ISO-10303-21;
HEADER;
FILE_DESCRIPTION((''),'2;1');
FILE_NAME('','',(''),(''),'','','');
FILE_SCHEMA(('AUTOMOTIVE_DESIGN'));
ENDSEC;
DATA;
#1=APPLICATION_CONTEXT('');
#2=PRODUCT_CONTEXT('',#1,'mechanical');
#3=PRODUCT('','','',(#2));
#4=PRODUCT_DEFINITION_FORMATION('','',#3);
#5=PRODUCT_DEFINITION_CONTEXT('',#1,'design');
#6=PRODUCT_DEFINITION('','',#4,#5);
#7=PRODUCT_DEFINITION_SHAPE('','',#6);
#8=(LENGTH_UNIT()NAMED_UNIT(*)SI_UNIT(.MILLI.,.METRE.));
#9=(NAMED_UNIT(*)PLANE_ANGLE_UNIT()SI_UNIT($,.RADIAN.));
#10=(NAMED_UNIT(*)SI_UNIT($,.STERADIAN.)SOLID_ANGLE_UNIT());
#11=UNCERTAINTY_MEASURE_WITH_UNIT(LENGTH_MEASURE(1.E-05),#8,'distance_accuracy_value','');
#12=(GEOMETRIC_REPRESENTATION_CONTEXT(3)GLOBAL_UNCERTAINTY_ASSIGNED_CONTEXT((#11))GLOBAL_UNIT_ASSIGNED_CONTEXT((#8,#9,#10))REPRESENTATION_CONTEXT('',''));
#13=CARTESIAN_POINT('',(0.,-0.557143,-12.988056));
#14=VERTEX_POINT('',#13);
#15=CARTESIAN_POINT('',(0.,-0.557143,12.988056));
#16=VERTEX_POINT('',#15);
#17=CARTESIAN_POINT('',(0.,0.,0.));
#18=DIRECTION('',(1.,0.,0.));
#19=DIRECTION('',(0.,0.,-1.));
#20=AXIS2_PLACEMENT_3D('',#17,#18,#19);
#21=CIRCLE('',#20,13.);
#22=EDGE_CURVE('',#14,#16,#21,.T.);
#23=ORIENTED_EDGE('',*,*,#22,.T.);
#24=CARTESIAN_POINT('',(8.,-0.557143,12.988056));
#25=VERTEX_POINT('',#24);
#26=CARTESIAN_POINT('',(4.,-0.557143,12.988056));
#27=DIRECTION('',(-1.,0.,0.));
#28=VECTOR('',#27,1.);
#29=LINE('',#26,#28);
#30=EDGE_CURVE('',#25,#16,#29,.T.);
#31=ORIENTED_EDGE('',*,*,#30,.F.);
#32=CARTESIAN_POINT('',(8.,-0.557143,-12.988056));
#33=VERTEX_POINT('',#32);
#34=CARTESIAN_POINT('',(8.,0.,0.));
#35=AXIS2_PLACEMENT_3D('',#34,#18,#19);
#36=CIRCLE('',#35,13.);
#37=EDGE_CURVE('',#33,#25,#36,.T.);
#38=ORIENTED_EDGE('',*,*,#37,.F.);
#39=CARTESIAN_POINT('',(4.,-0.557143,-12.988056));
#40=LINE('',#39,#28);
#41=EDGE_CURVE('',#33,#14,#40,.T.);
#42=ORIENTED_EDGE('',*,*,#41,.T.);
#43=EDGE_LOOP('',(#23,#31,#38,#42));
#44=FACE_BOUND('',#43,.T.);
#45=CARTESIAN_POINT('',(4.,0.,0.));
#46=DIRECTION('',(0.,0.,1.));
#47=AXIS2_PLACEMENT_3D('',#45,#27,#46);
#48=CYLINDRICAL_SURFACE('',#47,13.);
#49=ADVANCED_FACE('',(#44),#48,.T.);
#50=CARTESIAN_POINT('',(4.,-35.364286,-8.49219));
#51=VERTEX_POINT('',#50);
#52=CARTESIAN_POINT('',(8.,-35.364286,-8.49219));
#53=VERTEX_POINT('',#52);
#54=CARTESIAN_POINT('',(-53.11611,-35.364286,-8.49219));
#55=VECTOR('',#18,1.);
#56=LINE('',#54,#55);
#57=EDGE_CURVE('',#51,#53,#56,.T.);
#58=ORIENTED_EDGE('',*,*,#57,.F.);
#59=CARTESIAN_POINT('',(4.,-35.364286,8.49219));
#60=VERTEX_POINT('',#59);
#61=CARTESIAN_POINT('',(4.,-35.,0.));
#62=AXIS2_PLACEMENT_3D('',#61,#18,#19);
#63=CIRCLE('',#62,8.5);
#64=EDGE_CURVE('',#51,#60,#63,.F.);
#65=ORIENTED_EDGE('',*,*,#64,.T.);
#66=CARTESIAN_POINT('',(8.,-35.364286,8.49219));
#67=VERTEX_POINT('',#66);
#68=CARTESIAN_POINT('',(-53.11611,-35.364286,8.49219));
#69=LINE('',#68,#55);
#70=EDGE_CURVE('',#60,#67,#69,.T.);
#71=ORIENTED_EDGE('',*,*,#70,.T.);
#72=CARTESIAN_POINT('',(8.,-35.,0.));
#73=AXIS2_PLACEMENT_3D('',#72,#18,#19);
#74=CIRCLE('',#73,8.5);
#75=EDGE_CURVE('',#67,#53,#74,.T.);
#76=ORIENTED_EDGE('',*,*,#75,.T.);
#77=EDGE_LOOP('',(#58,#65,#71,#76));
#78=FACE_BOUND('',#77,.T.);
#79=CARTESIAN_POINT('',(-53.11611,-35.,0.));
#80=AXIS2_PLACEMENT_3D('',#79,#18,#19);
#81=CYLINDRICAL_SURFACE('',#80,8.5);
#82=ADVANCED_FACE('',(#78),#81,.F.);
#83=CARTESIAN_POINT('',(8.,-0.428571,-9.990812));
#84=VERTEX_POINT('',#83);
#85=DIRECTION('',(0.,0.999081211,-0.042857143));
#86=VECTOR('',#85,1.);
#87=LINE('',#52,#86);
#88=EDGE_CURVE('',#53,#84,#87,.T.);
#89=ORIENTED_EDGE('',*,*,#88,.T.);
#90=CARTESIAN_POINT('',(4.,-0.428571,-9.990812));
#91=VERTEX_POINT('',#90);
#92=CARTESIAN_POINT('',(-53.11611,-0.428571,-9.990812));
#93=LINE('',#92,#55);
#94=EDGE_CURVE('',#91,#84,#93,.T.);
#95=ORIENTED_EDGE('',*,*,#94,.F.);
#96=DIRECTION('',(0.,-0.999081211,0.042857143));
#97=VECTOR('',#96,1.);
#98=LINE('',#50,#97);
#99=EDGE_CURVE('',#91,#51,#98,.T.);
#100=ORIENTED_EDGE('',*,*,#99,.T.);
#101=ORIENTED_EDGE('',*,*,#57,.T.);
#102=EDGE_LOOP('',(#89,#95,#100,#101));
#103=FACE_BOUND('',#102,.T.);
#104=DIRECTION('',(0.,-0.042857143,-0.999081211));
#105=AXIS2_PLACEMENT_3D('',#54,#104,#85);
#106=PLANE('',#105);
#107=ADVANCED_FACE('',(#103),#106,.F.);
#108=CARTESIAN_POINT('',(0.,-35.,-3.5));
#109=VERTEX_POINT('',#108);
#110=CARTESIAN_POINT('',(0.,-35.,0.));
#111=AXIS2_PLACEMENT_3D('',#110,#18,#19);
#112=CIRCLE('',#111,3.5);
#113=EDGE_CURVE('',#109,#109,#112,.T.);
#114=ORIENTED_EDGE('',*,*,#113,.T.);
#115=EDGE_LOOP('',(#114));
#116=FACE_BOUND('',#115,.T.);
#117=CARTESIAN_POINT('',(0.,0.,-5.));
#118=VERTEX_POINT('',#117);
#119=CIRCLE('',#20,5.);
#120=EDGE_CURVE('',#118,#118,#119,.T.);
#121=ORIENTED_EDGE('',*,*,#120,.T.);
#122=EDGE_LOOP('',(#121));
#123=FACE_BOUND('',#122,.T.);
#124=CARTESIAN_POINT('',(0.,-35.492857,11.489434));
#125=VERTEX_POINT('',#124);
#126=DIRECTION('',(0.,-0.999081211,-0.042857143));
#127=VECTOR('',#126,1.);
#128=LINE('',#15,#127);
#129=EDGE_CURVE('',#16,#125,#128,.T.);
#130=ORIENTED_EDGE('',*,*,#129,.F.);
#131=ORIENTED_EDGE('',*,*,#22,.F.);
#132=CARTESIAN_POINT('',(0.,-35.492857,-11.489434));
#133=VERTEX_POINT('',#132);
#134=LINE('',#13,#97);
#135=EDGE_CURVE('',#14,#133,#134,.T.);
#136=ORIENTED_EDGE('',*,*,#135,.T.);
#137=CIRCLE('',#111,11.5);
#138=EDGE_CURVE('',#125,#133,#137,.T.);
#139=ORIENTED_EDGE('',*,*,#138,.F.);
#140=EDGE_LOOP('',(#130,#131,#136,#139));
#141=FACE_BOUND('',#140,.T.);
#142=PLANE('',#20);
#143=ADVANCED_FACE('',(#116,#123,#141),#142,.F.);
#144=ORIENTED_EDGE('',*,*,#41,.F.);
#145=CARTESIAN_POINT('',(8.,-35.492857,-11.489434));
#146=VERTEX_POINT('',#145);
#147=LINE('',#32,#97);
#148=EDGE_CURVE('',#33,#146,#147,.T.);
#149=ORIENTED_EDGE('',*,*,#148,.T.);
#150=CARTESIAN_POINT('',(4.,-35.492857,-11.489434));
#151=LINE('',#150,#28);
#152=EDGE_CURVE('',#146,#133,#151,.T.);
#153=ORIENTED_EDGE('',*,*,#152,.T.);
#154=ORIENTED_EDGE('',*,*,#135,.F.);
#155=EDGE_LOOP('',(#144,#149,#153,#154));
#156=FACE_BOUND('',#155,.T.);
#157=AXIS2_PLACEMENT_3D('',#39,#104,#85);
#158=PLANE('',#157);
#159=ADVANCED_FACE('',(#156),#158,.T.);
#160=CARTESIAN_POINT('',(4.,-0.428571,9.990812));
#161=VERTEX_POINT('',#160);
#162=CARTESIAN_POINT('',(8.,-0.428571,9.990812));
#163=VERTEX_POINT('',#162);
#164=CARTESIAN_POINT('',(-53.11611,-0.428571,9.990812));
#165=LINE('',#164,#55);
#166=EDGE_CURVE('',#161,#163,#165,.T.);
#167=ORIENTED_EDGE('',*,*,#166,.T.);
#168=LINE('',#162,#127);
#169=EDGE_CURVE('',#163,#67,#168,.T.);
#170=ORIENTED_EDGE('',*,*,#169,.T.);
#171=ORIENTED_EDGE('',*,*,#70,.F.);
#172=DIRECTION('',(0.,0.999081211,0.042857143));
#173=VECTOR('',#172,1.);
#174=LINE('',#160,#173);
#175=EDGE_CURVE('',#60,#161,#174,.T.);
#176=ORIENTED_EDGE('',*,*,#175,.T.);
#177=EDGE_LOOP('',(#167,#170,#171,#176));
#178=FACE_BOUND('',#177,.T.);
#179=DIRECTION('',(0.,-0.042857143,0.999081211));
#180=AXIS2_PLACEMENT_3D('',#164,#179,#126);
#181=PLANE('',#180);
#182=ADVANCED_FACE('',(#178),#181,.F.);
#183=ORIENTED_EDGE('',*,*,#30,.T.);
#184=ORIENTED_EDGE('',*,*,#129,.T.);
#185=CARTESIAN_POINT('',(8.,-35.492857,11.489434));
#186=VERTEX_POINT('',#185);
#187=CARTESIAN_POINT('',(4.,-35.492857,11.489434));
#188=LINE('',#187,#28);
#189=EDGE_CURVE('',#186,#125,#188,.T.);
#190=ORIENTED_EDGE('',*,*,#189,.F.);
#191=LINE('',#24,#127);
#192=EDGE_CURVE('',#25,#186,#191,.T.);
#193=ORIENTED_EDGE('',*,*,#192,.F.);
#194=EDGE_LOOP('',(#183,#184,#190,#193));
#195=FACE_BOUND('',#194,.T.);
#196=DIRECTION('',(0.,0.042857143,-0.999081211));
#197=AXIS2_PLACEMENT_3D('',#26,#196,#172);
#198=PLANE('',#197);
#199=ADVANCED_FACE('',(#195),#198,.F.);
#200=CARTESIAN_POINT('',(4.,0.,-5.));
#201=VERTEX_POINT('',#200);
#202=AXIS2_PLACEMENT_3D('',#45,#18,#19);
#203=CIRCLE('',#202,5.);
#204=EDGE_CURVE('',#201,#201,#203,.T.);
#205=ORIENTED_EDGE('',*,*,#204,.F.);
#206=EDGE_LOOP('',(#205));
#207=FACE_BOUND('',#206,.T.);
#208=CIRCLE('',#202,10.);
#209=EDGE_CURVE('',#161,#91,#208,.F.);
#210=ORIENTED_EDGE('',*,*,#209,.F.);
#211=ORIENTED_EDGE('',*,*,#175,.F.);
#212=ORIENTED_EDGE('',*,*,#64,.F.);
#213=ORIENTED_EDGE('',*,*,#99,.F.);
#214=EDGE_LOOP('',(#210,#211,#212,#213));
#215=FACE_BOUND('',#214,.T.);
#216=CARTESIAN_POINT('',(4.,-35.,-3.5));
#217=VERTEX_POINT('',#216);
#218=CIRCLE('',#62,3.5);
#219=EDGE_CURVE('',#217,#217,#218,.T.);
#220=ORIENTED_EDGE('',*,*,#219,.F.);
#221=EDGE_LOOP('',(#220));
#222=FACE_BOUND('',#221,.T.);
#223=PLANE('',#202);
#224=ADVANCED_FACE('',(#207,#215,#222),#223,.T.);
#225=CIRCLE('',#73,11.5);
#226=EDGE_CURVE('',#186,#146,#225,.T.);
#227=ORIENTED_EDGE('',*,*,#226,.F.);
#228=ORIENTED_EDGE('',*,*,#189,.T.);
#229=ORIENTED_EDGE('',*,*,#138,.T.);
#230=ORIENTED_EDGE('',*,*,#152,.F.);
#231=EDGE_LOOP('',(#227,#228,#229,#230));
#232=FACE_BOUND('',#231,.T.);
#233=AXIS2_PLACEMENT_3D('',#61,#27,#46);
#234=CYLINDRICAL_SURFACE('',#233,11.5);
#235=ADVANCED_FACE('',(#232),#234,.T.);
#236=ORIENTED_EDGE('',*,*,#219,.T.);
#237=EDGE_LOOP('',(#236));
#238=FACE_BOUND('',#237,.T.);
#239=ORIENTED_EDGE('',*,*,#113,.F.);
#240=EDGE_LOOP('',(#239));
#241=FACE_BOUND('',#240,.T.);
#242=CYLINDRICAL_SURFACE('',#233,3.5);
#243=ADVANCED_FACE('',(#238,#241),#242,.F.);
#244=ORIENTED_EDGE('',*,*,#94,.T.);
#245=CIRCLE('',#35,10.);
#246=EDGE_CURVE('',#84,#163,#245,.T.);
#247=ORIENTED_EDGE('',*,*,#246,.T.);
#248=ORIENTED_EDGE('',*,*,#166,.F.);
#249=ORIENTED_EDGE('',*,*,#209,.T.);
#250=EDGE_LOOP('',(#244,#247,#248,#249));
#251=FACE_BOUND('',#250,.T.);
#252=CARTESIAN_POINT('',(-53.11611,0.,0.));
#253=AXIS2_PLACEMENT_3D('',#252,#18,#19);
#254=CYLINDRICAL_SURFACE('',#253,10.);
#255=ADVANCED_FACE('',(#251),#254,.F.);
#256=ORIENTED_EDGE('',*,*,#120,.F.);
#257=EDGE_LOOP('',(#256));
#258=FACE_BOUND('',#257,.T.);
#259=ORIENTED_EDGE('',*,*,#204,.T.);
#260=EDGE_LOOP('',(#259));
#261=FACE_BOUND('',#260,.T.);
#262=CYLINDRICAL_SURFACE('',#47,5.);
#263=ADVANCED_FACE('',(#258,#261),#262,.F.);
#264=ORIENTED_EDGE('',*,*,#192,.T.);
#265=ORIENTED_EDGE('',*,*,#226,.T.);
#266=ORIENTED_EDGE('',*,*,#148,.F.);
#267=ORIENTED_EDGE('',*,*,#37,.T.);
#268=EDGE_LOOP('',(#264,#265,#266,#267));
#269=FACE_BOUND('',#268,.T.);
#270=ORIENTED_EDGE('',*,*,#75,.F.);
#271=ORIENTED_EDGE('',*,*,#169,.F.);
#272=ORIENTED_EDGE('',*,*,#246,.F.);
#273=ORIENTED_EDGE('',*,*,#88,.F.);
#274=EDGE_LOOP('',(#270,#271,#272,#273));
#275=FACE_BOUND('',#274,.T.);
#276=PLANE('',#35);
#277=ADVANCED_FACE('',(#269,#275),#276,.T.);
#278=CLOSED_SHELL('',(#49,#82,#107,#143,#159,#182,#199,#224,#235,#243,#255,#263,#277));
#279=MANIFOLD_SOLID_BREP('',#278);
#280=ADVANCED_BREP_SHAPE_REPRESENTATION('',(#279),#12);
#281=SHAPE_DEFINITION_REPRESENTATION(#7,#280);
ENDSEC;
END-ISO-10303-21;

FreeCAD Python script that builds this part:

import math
import FreeCAD as App
import Part
import Sketcher
from FreeCAD import Vector
Q = App.Units.Quantity

doc = App.newDocument("Part")
body = doc.addObject("PartDesign::Body", "Body")

sketch1 = body.newObject("Sketcher::SketchObject", "Sketch")
sketch1.AttachmentSupport = (doc.getObject("YZ_Plane"), [""])
sketch1.MapMode = "FlatFace"
sketch1.addGeometry(Part.ArcOfCircle(Part.Circle(Vector(0, 0, 0), Vector(0, 0, 1), 13), math.radians(-92.46), math.radians(-90)), False)
sketch1.addGeometry(Part.ArcOfCircle(Part.Circle(Vector(0, 0, 0), Vector(0, 0, 1), 13), math.radians(-90), math.radians(92)), False)
sketch1.addGeometry(Part.LineSegment(Vector(-0.56, 12.99, 0), Vector(-35.49, 11.49, 0)), False)
sketch1.addGeometry(Part.ArcOfCircle(Part.Circle(Vector(-35, 0, 0), Vector(0, 0, 1), 11.5), math.radians(92), math.radians(268)), False)
sketch1.addGeometry(Part.LineSegment(Vector(-35.49, -11.49, 0), Vector(-0.56, -12.99, 0)), False)
sketch1.addGeometry(Part.ArcOfCircle(Part.Circle(Vector(-35, 0, 0), Vector(0, 0, 1), 3.5), math.radians(0), math.radians(92)), False)
sketch1.addGeometry(Part.ArcOfCircle(Part.Circle(Vector(-35, 0, 0), Vector(0, 0, 1), 3.5), math.radians(-90), math.radians(0)), False)
sketch1.addGeometry(Part.ArcOfCircle(Part.Circle(Vector(-35, 0, 0), Vector(0, 0, 1), 3.5), math.radians(-92.46), math.radians(-90)), False)
sketch1.addGeometry(Part.ArcOfCircle(Part.Circle(Vector(-35, 0, 0), Vector(0, 0, 1), 3.5), math.radians(92), math.radians(268)), False)
sketch1.addGeometry(Part.ArcOfCircle(Part.Circle(Vector(0, 0, 0), Vector(0, 0, 1), 5), math.radians(92), math.radians(180)), False)
sketch1.addGeometry(Part.ArcOfCircle(Part.Circle(Vector(0, 0, 0), Vector(0, 0, 1), 5), math.radians(-90), math.radians(92)), False)
sketch1.addGeometry(Part.ArcOfCircle(Part.Circle(Vector(0, 0, 0), Vector(0, 0, 1), 5), math.radians(-92.46), math.radians(-90)), False)
sketch1.addGeometry(Part.ArcOfCircle(Part.Circle(Vector(0, 0, 0), Vector(0, 0, 1), 5), math.radians(180), math.radians(268)), False)
sketch1.addConstraint(Sketcher.Constraint("Tangent", 0, 2, 1, 1))
sketch1.addConstraint(Sketcher.Constraint("Tangent", 1, 2, 2, 1))
sketch1.addConstraint(Sketcher.Constraint("Tangent", 2, 2, 3, 1))
sketch1.addConstraint(Sketcher.Constraint("Tangent", 3, 2, 4, 1))
sketch1.addConstraint(Sketcher.Constraint("Tangent", 4, 2, 0, 1))
sketch1.addConstraint(Sketcher.Constraint("Tangent", 5, 1, 6, 2))
sketch1.addConstraint(Sketcher.Constraint("Tangent", 6, 1, 7, 2))
sketch1.addConstraint(Sketcher.Constraint("Tangent", 7, 1, 8, 2))
sketch1.addConstraint(Sketcher.Constraint("Tangent", 8, 1, 5, 2))
sketch1.addConstraint(Sketcher.Constraint("Tangent", 9, 1, 10, 2))
sketch1.addConstraint(Sketcher.Constraint("Tangent", 10, 1, 11, 2))
sketch1.addConstraint(Sketcher.Constraint("Tangent", 11, 1, 12, 2))
sketch1.addConstraint(Sketcher.Constraint("Tangent", 12, 1, 9, 2))
sketch1.addConstraint(Sketcher.Constraint("Coincident", 0, 3, -1, 1))
sketch1.addConstraint(Sketcher.Constraint("Coincident", 9, 3, -1, 1))
sketch1.addConstraint(Sketcher.Constraint("Coincident", 5, 3, 3, 3))
sketch1.addConstraint(Sketcher.Constraint("Equal", 0, 1))
sketch1.addConstraint(Sketcher.Constraint("Equal", 5, 6))
sketch1.addConstraint(Sketcher.Constraint("Equal", 9, 10))
sketch1.addConstraint(Sketcher.Constraint("Symmetric", 7, 1, 8, 1, -1))
sketch1.addConstraint(Sketcher.Constraint("PointOnObject", 0, 2, -2))
sketch1.addConstraint(Sketcher.Constraint("PointOnObject", 5, 1, -1))
sketch1.addConstraint(Sketcher.Constraint("PointOnObject", 10, 1, -2))
sketch1.addConstraint(Sketcher.Constraint("PointOnObject", 12, 1, -1))
sketch1.addConstraint(Sketcher.Constraint("Vertical", 8, 3, 6, 1))
sketch1.addConstraint(Sketcher.Constraint("Vertical", 9, 1, 11, 1))
sketch1.addConstraint(Sketcher.Constraint("Radius", 0, Q("13.000001 mm")))
sketch1.addConstraint(Sketcher.Constraint("Radius", 9, Q("5 mm")))
sketch1.addConstraint(Sketcher.Constraint("Radius", 3, Q("11.5 mm")))
sketch1.addConstraint(Sketcher.Constraint("Radius", 5, Q("3.5 mm")))
sketch1.addConstraint(Sketcher.Constraint("DistanceX", 3, 3, -1, 1, Q("35 mm")))
sketch1.addConstraint(Sketcher.Constraint("DistanceX", 7, 1, -1, 1, Q("35.15 mm")))
sketch1.addConstraint(Sketcher.Constraint("DistanceX", 9, 1, -1, 1, Q("0.214286 mm")))
pad1 = body.newObject("PartDesign::Pad", "Pad")
pad1.Profile = sketch1
pad1.Length = 4

sketch2 = body.newObject("Sketcher::SketchObject", "Sketch001")
sketch2.AttachmentSupport = (doc.getObject("YZ_Plane"), [""])
sketch2.MapMode = "FlatFace"
sketch2.addGeometry(Part.LineSegment(Vector(-0.56, 12.99, 0), Vector(-35.49, 11.49, 0)), False)
sketch2.addGeometry(Part.ArcOfCircle(Part.Circle(Vector(-35, 0, 0), Vector(0, 0, 1), 11.5), math.radians(92), math.radians(268)), False)
sketch2.addGeometry(Part.LineSegment(Vector(-35.49, -11.49, 0), Vector(-0.56, -12.99, 0)), False)
sketch2.addGeometry(Part.ArcOfCircle(Part.Circle(Vector(0, 0, 0), Vector(0, 0, 1), 13), math.radians(-92.46), math.radians(-90)), False)
sketch2.addGeometry(Part.ArcOfCircle(Part.Circle(Vector(0, 0, 0), Vector(0, 0, 1), 13), math.radians(-90), math.radians(92)), False)
sketch2.addGeometry(Part.LineSegment(Vector(-25.8, 6.9, 0), Vector(-10.58, 7.55, 0)), False)
sketch2.addGeometry(Part.LineSegment(Vector(-10.58, 7.55, 0), Vector(-0.34, 7.99, 0)), False)
sketch2.addGeometry(Part.ArcOfCircle(Part.Circle(Vector(0, 0, 0), Vector(0, 0, 1), 8), math.radians(-90), math.radians(92)), False)
sketch2.addGeometry(Part.ArcOfCircle(Part.Circle(Vector(0, 0, 0), Vector(0, 0, 1), 8), math.radians(-92.46), math.radians(-90)), False)
sketch2.addGeometry(Part.LineSegment(Vector(-0.34, -7.99, 0), Vector(-10.58, -7.55, 0)), False)
sketch2.addGeometry(Part.LineSegment(Vector(-10.58, -7.55, 0), Vector(-25.8, -6.9, 0)), False)
sketch2.addGeometry(Part.LineSegment(Vector(-25.8, -6.9, 0), Vector(-35.28, -6.49, 0)), False)
sketch2.addGeometry(Part.ArcOfCircle(Part.Circle(Vector(-35, 0, 0), Vector(0, 0, 1), 6.5), math.radians(92), math.radians(268)), False)
sketch2.addGeometry(Part.LineSegment(Vector(-35.28, 6.49, 0), Vector(-25.8, 6.9, 0)), False)
sketch2.addConstraint(Sketcher.Constraint("Tangent", 0, 2, 1, 1))
sketch2.addConstraint(Sketcher.Constraint("Tangent", 1, 2, 2, 1))
sketch2.addConstraint(Sketcher.Constraint("Tangent", 2, 2, 3, 1))
sketch2.addConstraint(Sketcher.Constraint("Tangent", 3, 2, 4, 1))
sketch2.addConstraint(Sketcher.Constraint("Tangent", 4, 2, 0, 1))
sketch2.addConstraint(Sketcher.Constraint("Coincident", 5, 2, 6, 1))
sketch2.addConstraint(Sketcher.Constraint("Tangent", 6, 2, 7, 2))
sketch2.addConstraint(Sketcher.Constraint("Tangent", 7, 1, 8, 2))
sketch2.addConstraint(Sketcher.Constraint("Tangent", 8, 1, 9, 1))
sketch2.addConstraint(Sketcher.Constraint("Coincident", 9, 2, 10, 1))
sketch2.addConstraint(Sketcher.Constraint("Coincident", 10, 2, 11, 1))
sketch2.addConstraint(Sketcher.Constraint("Tangent", 11, 2, 12, 2))
sketch2.addConstraint(Sketcher.Constraint("Tangent", 12, 1, 13, 1))
sketch2.addConstraint(Sketcher.Constraint("Coincident", 13, 2, 5, 1))
sketch2.addConstraint(Sketcher.Constraint("Coincident", 3, 3, -1, 1))
sketch2.addConstraint(Sketcher.Constraint("Coincident", 7, 3, -1, 1))
sketch2.addConstraint(Sketcher.Constraint("Coincident", 12, 3, 1, 3))
sketch2.addConstraint(Sketcher.Constraint("Equal", 3, 4))
sketch2.addConstraint(Sketcher.Constraint("Equal", 7, 8))
sketch2.addConstraint(Sketcher.Constraint("Symmetric", 5, 2, 9, 2, -1))
sketch2.addConstraint(Sketcher.Constraint("Symmetric", 11, 2, 12, 1, -1))
sketch2.addConstraint(Sketcher.Constraint("PointOnObject", 3, 2, -2))
sketch2.addConstraint(Sketcher.Constraint("PointOnObject", 7, 1, -2))
sketch2.addConstraint(Sketcher.Constraint("Parallel", 0, 5))
sketch2.addConstraint(Sketcher.Constraint("Parallel", 5, 6))
sketch2.addConstraint(Sketcher.Constraint("Parallel", 10, 11))
sketch2.addConstraint(Sketcher.Constraint("Vertical", 10, 2, 13, 2))
sketch2.addConstraint(Sketcher.Constraint("Radius", 3, Q("13.000001 mm")))
sketch2.addConstraint(Sketcher.Constraint("Radius", 7, Q("8 mm")))
sketch2.addConstraint(Sketcher.Constraint("Radius", 1, Q("11.5 mm")))
sketch2.addConstraint(Sketcher.Constraint("DistanceX", 1, 3, -1, 1, Q("35 mm")))
sketch2.addConstraint(Sketcher.Constraint("Distance", 5, Q("15.234059 mm")))
sketch2.addConstraint(Sketcher.Constraint("Distance", 6, Q("10.246951 mm")))
pad2 = body.newObject("PartDesign::Pad", "Pad001")
pad2.Profile = sketch2
pad2.Length = 8

sketch3 = body.newObject("Sketcher::SketchObject", "Sketch002")
sketch3.AttachmentSupport = (doc.getObject("YZ_Plane"), [""])
sketch3.MapMode = "FlatFace"
sketch3.AttachmentOffset = App.Placement(Vector(0, 0, 8), App.Rotation())
sketch3.addGeometry(Part.LineSegment(Vector(0, 10, 0), Vector(-35, 8, 0)), False)
sketch3.addGeometry(Part.ArcOfCircle(Part.Circle(Vector(-35, 0, 0), Vector(0, 0, 1), 8), math.radians(92), math.radians(268)), False)
sketch3.addGeometry(Part.LineSegment(Vector(-35, -8, 0), Vector(0, -10, 0)), False)
sketch3.addGeometry(Part.ArcOfCircle(Part.Circle(Vector(0, 0, 0), Vector(0, 0, 1), 10), math.radians(-92), math.radians(92)), False)
sketch3.addConstraint(Sketcher.Constraint("Tangent", 0, 2, 1, 1))
sketch3.addConstraint(Sketcher.Constraint("Tangent", 1, 2, 2, 1))
sketch3.addConstraint(Sketcher.Constraint("Tangent", 2, 2, 3, 1))
sketch3.addConstraint(Sketcher.Constraint("Tangent", 3, 2, 0, 1))
sketch3.addConstraint(Sketcher.Constraint("Coincident", 3, 3, -1, 1))
sketch3.addConstraint(Sketcher.Constraint("PointOnObject", 1, 3, -1))
sketch3.addConstraint(Sketcher.Constraint("Radius", 3, Q("10 mm")))
sketch3.addConstraint(Sketcher.Constraint("Radius", 1, Q("8.5 mm")))
sketch3.addConstraint(Sketcher.Constraint("DistanceX", 1, 3, -1, 1, Q("35 mm")))
pocket1 = body.newObject("PartDesign::Pocket", "Pocket")
pocket1.Profile = sketch3
pocket1.Length = 4

doc.recompute()
